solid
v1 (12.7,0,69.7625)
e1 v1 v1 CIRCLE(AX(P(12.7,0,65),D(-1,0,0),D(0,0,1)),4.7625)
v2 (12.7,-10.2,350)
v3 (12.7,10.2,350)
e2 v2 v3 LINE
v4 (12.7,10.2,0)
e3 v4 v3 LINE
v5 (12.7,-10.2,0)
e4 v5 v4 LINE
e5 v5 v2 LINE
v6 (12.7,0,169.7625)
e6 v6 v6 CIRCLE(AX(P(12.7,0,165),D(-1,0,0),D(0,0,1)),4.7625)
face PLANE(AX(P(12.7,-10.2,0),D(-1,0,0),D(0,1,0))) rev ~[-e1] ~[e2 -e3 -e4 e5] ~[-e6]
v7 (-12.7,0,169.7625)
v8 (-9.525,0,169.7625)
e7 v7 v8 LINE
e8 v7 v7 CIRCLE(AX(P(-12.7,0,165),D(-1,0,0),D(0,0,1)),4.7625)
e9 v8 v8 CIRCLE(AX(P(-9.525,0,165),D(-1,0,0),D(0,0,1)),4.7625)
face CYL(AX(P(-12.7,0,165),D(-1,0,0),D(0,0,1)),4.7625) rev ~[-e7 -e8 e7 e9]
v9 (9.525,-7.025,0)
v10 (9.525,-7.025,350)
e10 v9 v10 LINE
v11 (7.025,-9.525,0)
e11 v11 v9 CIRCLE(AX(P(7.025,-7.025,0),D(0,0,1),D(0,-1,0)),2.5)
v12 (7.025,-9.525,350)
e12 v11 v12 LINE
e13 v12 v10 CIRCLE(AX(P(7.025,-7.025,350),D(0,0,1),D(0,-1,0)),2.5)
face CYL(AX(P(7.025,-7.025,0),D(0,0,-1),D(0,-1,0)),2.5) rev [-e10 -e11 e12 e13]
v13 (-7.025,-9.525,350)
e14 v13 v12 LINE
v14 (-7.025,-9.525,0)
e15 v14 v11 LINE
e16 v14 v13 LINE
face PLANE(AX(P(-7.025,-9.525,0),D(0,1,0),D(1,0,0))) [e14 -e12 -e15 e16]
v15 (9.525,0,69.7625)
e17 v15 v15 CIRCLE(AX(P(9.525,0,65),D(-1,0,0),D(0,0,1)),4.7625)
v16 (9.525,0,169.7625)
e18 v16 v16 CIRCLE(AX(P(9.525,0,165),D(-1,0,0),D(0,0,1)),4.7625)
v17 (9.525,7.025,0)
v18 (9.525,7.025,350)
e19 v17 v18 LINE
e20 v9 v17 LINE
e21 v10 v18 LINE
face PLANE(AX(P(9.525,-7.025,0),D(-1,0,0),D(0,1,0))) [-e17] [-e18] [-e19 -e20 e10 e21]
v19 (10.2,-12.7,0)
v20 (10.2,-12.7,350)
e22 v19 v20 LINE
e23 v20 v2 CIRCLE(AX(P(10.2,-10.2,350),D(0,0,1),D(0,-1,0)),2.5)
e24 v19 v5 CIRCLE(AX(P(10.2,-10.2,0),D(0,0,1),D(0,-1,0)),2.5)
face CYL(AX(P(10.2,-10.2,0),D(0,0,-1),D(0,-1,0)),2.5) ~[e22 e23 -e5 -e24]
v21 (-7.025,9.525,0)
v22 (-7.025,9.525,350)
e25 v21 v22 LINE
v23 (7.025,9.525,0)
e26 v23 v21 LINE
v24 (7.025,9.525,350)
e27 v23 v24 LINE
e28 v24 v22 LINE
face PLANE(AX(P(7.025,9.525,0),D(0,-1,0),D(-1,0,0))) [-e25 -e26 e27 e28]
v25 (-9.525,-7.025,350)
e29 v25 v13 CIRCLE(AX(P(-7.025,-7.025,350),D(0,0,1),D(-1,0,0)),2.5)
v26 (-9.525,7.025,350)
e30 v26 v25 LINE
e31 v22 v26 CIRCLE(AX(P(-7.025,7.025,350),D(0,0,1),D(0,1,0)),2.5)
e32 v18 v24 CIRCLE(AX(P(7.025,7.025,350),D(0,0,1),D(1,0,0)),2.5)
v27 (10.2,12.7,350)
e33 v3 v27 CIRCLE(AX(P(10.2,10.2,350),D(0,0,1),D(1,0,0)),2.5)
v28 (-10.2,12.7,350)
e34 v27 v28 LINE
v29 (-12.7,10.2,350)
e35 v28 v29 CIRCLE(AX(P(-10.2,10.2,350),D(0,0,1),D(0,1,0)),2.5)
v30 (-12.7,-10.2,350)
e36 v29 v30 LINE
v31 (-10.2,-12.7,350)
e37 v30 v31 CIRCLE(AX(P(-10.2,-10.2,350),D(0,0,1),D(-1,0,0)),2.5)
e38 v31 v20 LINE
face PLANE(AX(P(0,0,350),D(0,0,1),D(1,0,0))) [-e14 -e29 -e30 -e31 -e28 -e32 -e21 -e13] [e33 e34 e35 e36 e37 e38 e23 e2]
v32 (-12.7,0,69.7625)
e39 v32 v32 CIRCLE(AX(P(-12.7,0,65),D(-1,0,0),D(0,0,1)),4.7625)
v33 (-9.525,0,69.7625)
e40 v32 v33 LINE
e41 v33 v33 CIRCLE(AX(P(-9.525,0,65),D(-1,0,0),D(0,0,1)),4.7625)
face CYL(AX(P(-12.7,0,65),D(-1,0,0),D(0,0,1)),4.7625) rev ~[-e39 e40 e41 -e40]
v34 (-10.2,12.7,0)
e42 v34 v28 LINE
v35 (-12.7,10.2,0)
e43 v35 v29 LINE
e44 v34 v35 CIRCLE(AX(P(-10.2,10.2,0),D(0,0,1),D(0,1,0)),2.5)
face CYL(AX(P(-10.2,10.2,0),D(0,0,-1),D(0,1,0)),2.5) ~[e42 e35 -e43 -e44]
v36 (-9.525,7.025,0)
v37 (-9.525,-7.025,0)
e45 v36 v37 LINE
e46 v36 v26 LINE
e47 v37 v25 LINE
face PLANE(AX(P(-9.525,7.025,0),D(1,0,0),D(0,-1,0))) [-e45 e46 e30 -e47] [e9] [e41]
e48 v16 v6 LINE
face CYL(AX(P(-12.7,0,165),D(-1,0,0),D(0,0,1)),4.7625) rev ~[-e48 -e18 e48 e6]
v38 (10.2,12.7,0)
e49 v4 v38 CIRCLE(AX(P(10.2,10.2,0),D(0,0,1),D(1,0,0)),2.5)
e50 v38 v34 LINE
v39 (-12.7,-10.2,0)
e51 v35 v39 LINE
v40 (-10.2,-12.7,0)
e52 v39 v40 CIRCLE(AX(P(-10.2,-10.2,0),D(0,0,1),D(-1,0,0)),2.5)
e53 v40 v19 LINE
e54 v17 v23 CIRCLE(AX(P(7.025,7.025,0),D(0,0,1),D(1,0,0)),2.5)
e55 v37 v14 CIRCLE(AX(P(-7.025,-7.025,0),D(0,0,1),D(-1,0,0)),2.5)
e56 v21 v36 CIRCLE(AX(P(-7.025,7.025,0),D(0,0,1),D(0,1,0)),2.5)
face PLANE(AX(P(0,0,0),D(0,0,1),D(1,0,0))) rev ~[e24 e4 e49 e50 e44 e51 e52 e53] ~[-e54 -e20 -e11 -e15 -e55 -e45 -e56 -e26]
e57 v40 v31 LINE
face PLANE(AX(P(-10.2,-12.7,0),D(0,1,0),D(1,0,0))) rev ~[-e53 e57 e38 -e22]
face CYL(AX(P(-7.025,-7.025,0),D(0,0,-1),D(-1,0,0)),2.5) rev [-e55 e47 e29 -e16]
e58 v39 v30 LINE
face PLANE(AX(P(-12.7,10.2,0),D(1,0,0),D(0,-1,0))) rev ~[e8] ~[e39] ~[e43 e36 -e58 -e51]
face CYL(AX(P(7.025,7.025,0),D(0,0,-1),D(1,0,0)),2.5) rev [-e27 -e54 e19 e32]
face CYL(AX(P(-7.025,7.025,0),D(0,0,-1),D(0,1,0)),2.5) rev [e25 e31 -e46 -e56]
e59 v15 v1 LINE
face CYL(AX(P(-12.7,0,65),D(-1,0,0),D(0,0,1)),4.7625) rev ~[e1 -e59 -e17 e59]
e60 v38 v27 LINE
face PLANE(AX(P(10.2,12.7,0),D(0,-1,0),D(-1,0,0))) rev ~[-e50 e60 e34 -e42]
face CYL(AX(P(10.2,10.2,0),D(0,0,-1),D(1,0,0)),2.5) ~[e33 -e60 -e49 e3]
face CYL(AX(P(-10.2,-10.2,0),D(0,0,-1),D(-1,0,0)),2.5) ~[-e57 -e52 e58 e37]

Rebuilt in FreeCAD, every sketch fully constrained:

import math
import FreeCAD as App
import Part
import Sketcher
from FreeCAD import Vector
Q = App.Units.Quantity

doc = App.newDocument("Part")
body = doc.addObject("PartDesign::Body", "Body")

# Sketch on XY plane
sketch1 = body.newObject("Sketcher::SketchObject", "Sketch")
sketch1.AttachmentSupport = (doc.getObject("XY_Plane"), [""])
sketch1.MapMode = "FlatFace"
sketch1.addGeometry(Part.LineSegment(Vector(-10.2, -12.7, 0), Vector(10.2, -12.7, 0)), False)
sketch1.addGeometry(Part.ArcOfCircle(Part.Circle(Vector(10.2, -10.2, 0), Vector(0, 0, 1), 2.5), math.radians(-90), math.radians(0)), False)
sketch1.addGeometry(Part.LineSegment(Vector(12.7, -10.2, 0), Vector(12.7, 10.2, 0)), False)
sketch1.addGeometry(Part.ArcOfCircle(Part.Circle(Vector(10.2, 10.2, 0), Vector(0, 0, 1), 2.5), math.radians(0), math.radians(90)), False)
sketch1.addGeometry(Part.LineSegment(Vector(10.2, 12.7, 0), Vector(-10.2, 12.7, 0)), False)
sketch1.addGeometry(Part.ArcOfCircle(Part.Circle(Vector(-10.2, 10.2, 0), Vector(0, 0, 1), 2.5), math.radians(90), math.radians(180)), False)
sketch1.addGeometry(Part.LineSegment(Vector(-12.7, 10.2, 0), Vector(-12.7, -10.2, 0)), False)
sketch1.addGeometry(Part.ArcOfCircle(Part.Circle(Vector(-10.2, -10.2, 0), Vector(0, 0, 1), 2.5), math.radians(180), math.radians(270)), False)
sketch1.addGeometry(Part.LineSegment(Vector(7, -9.5, 0), Vector(-7, -9.5, 0)), False)
sketch1.addGeometry(Part.ArcOfCircle(Part.Circle(Vector(-7, -7, 0), Vector(0, 0, 1), 2.5), math.radians(180), math.radians(270)), False)
sketch1.addGeometry(Part.LineSegment(Vector(-9.5, -7, 0), Vector(-9.5, 7, 0)), False)
sketch1.addGeometry(Part.ArcOfCircle(Part.Circle(Vector(-7, 7, 0), Vector(0, 0, 1), 2.5), math.radians(90), math.radians(180)), False)
sketch1.addGeometry(Part.LineSegment(Vector(-7, 9.5, 0), Vector(7, 9.5, 0)), False)
sketch1.addGeometry(Part.ArcOfCircle(Part.Circle(Vector(7, 7, 0), Vector(0, 0, 1), 2.5), math.radians(0), math.radians(90)), False)
sketch1.addGeometry(Part.LineSegment(Vector(9.5, 7, 0), Vector(9.5, -7, 0)), False)
sketch1.addGeometry(Part.ArcOfCircle(Part.Circle(Vector(7, -7, 0), Vector(0, 0, 1), 2.5), math.radians(-90), math.radians(0)), False)
sketch1.addConstraint(Sketcher.Constraint("Tangent", 0, 2, 1, 1))
sketch1.addConstraint(Sketcher.Constraint("Tangent", 1, 2, 2, 1))
sketch1.addConstraint(Sketcher.Constraint("Tangent", 2, 2, 3, 1))
sketch1.addConstraint(Sketcher.Constraint("Tangent", 3, 2, 4, 1))
sketch1.addConstraint(Sketcher.Constraint("Tangent", 4, 2, 5, 1))
sketch1.addConstraint(Sketcher.Constraint("Tangent", 5, 2, 6, 1))
sketch1.addConstraint(Sketcher.Constraint("Tangent", 6, 2, 7, 1))
sketch1.addConstraint(Sketcher.Constraint("Tangent", 7, 2, 0, 1))
sketch1.addConstraint(Sketcher.Constraint("Tangent", 8, 2, 9, 2))
sketch1.addConstraint(Sketcher.Constraint("Tangent", 9, 1, 10, 1))
sketch1.addConstraint(Sketcher.Constraint("Tangent", 10, 2, 11, 2))
sketch1.addConstraint(Sketcher.Constraint("Tangent", 11, 1, 12, 1))
sketch1.addConstraint(Sketcher.Constraint("Tangent", 12, 2, 13, 2))
sketch1.addConstraint(Sketcher.Constraint("Tangent", 13, 1, 14, 1))
sketch1.addConstraint(Sketcher.Constraint("Tangent", 14, 2, 15, 2))
sketch1.addConstraint(Sketcher.Constraint("Tangent", 15, 1, 8, 1))
sketch1.addConstraint(Sketcher.Constraint("Horizontal", 0))
sketch1.addConstraint(Sketcher.Constraint("Vertical", 2))
sketch1.addConstraint(Sketcher.Constraint("Horizontal", 4))
sketch1.addConstraint(Sketcher.Constraint("Vertical", 6))
sketch1.addConstraint(Sketcher.Constraint("Horizontal", 8))
sketch1.addConstraint(Sketcher.Constraint("Vertical", 10))
sketch1.addConstraint(Sketcher.Constraint("Horizontal", 12))
sketch1.addConstraint(Sketcher.Constraint("Vertical", 14))
sketch1.addConstraint(Sketcher.Constraint("Equal", 1, 3))
sketch1.addConstraint(Sketcher.Constraint("Equal", 3, 5))
sketch1.addConstraint(Sketcher.Constraint("Equal", 5, 7))
sketch1.addConstraint(Sketcher.Constraint("Equal", 7, 9))
sketch1.addConstraint(Sketcher.Constraint("Equal", 9, 11))
sketch1.addConstraint(Sketcher.Constraint("Equal", 11, 13))
sketch1.addConstraint(Sketcher.Constraint("Equal", 13, 15))
sketch1.addConstraint(Sketcher.Constraint("Symmetric", 1, 3, 5, 3, -1, 1))
sketch1.addConstraint(Sketcher.Constraint("Symmetric", 9, 3, 13, 3, -1, 1))
sketch1.addConstraint(Sketcher.Constraint("Equal", 4, 2))
sketch1.addConstraint(Sketcher.Constraint("Equal", 12, 10))
sketch1.addConstraint(Sketcher.Constraint("Radius", 1, Q("2.5 mm")))
sketch1.addConstraint(Sketcher.Constraint("DistanceX", 0, 1, 0, 2, Q("20.4 mm")))
sketch1.addConstraint(Sketcher.Constraint("DistanceX", 8, 2, 8, 1, Q("14.05 mm")))
pad1 = body.newObject("PartDesign::Pad", "Pad")
pad1.Profile = sketch1
pad1.Length = 350

# Sketch on YZ plane
sketch2 = body.newObject("Sketcher::SketchObject", "Sketch001")
sketch2.AttachmentSupport = (doc.getObject("YZ_Plane"), [""])
sketch2.MapMode = "FlatFace"
sketch2.AttachmentOffset = App.Placement(Vector(0, 0, -12.7), App.Rotation())
sketch2.addGeometry(Part.Circle(Vector(0, 65, 0), Vector(0, 0, 1), 4.8), False)
sketch2.addGeometry(Part.Circle(Vector(0, 165, 0), Vector(0, 0, 1), 4.8), False)
sketch2.addConstraint(Sketcher.Constraint("Equal", 0, 1))
sketch2.addConstraint(Sketcher.Constraint("PointOnObject", 0, 3, -2))
sketch2.addConstraint(Sketcher.Constraint("PointOnObject", 1, 3, -2))
sketch2.addConstraint(Sketcher.Constraint("Diameter", 0, Q("9.525 mm")))
sketch2.addConstraint(Sketcher.Constraint("DistanceY", -1, 1, 0, 3, Q("65 mm")))
sketch2.addConstraint(Sketcher.Constraint("DistanceY", -1, 1, 1, 3, Q("165 mm")))
pocket1 = body.newObject("PartDesign::Pocket", "Pocket")
pocket1.Profile = sketch2
pocket1.Type = "ThroughAll"
pocket1.Reversed = True

doc.recompute()
